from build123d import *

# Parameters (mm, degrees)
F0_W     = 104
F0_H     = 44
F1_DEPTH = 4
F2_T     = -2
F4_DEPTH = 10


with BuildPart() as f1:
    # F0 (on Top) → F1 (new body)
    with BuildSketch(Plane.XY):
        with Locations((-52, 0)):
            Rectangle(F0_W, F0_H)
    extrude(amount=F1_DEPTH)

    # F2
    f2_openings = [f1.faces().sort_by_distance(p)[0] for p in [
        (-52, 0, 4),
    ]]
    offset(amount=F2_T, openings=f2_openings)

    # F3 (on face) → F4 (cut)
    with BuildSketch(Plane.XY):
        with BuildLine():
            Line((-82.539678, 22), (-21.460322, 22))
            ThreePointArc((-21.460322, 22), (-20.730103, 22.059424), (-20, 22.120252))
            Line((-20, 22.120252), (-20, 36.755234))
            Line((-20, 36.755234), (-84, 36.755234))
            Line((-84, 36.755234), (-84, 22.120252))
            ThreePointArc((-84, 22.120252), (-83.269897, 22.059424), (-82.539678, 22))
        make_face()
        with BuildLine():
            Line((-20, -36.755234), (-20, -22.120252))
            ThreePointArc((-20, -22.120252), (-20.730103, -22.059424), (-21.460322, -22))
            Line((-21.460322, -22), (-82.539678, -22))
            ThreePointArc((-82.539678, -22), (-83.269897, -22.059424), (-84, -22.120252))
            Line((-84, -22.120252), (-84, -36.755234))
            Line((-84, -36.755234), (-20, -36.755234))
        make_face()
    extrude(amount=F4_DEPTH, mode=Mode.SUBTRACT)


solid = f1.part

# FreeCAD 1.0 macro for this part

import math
import FreeCAD as App
import Part
import Sketcher

V = App.Vector
Q = App.Units.Quantity


def faces_at(feature, points):
    """Names of the faces that lie closest to the given points."""
    faces = feature.Shape.Faces
    near = lambda p: min(range(len(faces)), key=lambda i: faces[i].distToShape(Part.Vertex(*p))[0])
    return sorted({f"Face{near(p) + 1}" for p in points})


def add_polygon(sketch, points):
    """Adds a closed chain of lines whose ends are joined by coincident constraints."""
    first, n = sketch.GeometryCount, len(points)
    for a, b in zip(points, points[1:] + points[:1]):
        sketch.addGeometry(Part.LineSegment(App.Vector(*a, 0), App.Vector(*b, 0)), False)
    for i in range(n):
        sketch.addConstraint(Sketcher.Constraint("Coincident", first + i, 2, first + (i + 1) % n, 1))

doc = App.newDocument("Part")
body = doc.addObject("PartDesign::Body", "Body")

# Sketch on XY plane
sketch1 = body.newObject("Sketcher::SketchObject", "Sketch")
sketch1.AttachmentSupport = (doc.getObject("XY_Plane"), [""])
sketch1.MapMode = "FlatFace"
add_polygon(sketch1, [(-104, 22), (-104, -22), (0, -22), (0, 22)])  # lines 0-3
sketch1.addConstraint([
    Sketcher.Constraint("Vertical", 0),
    Sketcher.Constraint("Horizontal", 1),
    Sketcher.Constraint("Vertical", 2),
    Sketcher.Constraint("Horizontal", 3),
    Sketcher.Constraint("Symmetric", 1, 2, 2, 2, -1, 1),
    Sketcher.Constraint("DistanceX", 1, 1, 1, 2, Q("104 mm")),
    Sketcher.Constraint("DistanceY", 0, 2, 0, 1, Q("44 mm")),
])
pad1 = body.newObject("PartDesign::Pad", "Pad")
pad1.Profile = sketch1
pad1.Length = 4
doc.recompute()

thickness = body.newObject("PartDesign::Thickness", "Thickness")
thickness.Base = (pad1, faces_at(pad1, [(-52, 0, 4)]))
thickness.Value = 2
thickness.Reversed = True
thickness.Join = "Arc"

# Sketch on XY plane
sketch2 = body.newObject("Sketcher::SketchObject", "Sketch001")
sketch2.AttachmentSupport = (doc.getObject("XY_Plane"), [""])
sketch2.MapMode = "FlatFace"
sketch2.addGeometry([
    Part.LineSegment(V(-82.5, 22, 0), V(-21.5, 22, 0)),  # 0
    Part.ArcOfCircle(Part.Circle(V(-52, 401.8, 0), V(0, 0, 1), 381), math.radians(-85.4), math.radians(-85.18)),  # 1
    Part.LineSegment(V(-20, 22.1, 0), V(-20, 36.8, 0)),  # 2
    Part.LineSegment(V(-20, 36.8, 0), V(-84, 36.8, 0)),  # 3
    Part.LineSegment(V(-84, 36.8, 0), V(-84, 22.1, 0)),  # 4
    Part.ArcOfCircle(Part.Circle(V(-52, 401.8, 0), V(0, 0, 1), 381), math.radians(-94.82), math.radians(-94.6)),  # 5
    Part.LineSegment(V(-20, -36.8, 0), V(-20, -22.1, 0)),  # 6
    Part.ArcOfCircle(Part.Circle(V(-52, -401.8, 0), V(0, 0, 1), 381), math.radians(85.18), math.radians(85.4)),  # 7
    Part.LineSegment(V(-21.5, -22, 0), V(-82.5, -22, 0)),  # 8
    Part.ArcOfCircle(Part.Circle(V(-52, -401.8, 0), V(0, 0, 1), 381), math.radians(94.6), math.radians(94.82)),  # 9
    Part.LineSegment(V(-84, -22.1, 0), V(-84, -36.8, 0)),  # 10
    Part.LineSegment(V(-84, -36.8, 0), V(-20, -36.8, 0)),  # 11
], False)
sketch2.addConstraint([
    Sketcher.Constraint("Coincident", 0, 2, 1, 1),
    Sketcher.Constraint("Coincident", 1, 2, 2, 1),
    Sketcher.Constraint("Coincident", 2, 2, 3, 1),
    Sketcher.Constraint("Coincident", 3, 2, 4, 1),
    Sketcher.Constraint("Coincident", 4, 2, 5, 1),
    Sketcher.Constraint("Coincident", 5, 2, 0, 1),
    Sketcher.Constraint("Coincident", 6, 2, 7, 1),
    Sketcher.Constraint("Coincident", 7, 2, 8, 1),
    Sketcher.Constraint("Coincident", 8, 2, 9, 1),
    Sketcher.Constraint("Coincident", 9, 2, 10, 1),
    Sketcher.Constraint("Coincident", 10, 2, 11, 1),
    Sketcher.Constraint("Coincident", 11, 2, 6, 1),
    Sketcher.Constraint("Horizontal", 0),
    Sketcher.Constraint("Vertical", 2),
    Sketcher.Constraint("Horizontal", 3),
    Sketcher.Constraint("Vertical", 4),
    Sketcher.Constraint("Vertical", 6),
    Sketcher.Constraint("Horizontal", 8),
    Sketcher.Constraint("Vertical", 10),
    Sketcher.Constraint("Horizontal", 11),
    Sketcher.Constraint("Equal", 1, 5),
    Sketcher.Constraint("Equal", 5, 7),
    Sketcher.Constraint("Equal", 7, 9),
    Sketcher.Constraint("Symmetric", 1, 3, 7, 3, -1),
    Sketcher.Constraint("Symmetric", 5, 3, 9, 3, -1),
    Sketcher.Constraint("Symmetric", 3, 2, 10, 2, -1),
    Sketcher.Constraint("Horizontal", 1, 3, 5, 3),
    Sketcher.Constraint("Horizontal", 1, 2, 4, 2),
    Sketcher.Constraint("Vertical", 2, 2, 6, 2),
    Sketcher.Constraint("Vertical", 0, 2, 7, 2),
    Sketcher.Constraint("DistanceX", 3, 2, 3, 1, Q("64 mm")),
    Sketcher.Constraint("DistanceY", -1, 1, 0, 2, Q("22 mm")),
    Sketcher.Constraint("DistanceX", 2, 2, -1, 1, Q("20 mm")),
    Sketcher.Constraint("Radius", 1, Q("381.002898 mm")),
    Sketcher.Constraint("DistanceX", 0, 1, 0, 2, Q("61.079356 mm")),
    Sketcher.Constraint("DistanceY", 2, 1, 2, 2, Q("14.634982 mm")),
    Sketcher.Constraint("DistanceX", 5, 3, 0, 2, Q("30.54126 mm")),
])
pocket1 = body.newObject("PartDesign::Pocket", "Pocket")
pocket1.Profile = sketch2
pocket1.Length = 10
pocket1.Reversed = True

doc.recompute()
